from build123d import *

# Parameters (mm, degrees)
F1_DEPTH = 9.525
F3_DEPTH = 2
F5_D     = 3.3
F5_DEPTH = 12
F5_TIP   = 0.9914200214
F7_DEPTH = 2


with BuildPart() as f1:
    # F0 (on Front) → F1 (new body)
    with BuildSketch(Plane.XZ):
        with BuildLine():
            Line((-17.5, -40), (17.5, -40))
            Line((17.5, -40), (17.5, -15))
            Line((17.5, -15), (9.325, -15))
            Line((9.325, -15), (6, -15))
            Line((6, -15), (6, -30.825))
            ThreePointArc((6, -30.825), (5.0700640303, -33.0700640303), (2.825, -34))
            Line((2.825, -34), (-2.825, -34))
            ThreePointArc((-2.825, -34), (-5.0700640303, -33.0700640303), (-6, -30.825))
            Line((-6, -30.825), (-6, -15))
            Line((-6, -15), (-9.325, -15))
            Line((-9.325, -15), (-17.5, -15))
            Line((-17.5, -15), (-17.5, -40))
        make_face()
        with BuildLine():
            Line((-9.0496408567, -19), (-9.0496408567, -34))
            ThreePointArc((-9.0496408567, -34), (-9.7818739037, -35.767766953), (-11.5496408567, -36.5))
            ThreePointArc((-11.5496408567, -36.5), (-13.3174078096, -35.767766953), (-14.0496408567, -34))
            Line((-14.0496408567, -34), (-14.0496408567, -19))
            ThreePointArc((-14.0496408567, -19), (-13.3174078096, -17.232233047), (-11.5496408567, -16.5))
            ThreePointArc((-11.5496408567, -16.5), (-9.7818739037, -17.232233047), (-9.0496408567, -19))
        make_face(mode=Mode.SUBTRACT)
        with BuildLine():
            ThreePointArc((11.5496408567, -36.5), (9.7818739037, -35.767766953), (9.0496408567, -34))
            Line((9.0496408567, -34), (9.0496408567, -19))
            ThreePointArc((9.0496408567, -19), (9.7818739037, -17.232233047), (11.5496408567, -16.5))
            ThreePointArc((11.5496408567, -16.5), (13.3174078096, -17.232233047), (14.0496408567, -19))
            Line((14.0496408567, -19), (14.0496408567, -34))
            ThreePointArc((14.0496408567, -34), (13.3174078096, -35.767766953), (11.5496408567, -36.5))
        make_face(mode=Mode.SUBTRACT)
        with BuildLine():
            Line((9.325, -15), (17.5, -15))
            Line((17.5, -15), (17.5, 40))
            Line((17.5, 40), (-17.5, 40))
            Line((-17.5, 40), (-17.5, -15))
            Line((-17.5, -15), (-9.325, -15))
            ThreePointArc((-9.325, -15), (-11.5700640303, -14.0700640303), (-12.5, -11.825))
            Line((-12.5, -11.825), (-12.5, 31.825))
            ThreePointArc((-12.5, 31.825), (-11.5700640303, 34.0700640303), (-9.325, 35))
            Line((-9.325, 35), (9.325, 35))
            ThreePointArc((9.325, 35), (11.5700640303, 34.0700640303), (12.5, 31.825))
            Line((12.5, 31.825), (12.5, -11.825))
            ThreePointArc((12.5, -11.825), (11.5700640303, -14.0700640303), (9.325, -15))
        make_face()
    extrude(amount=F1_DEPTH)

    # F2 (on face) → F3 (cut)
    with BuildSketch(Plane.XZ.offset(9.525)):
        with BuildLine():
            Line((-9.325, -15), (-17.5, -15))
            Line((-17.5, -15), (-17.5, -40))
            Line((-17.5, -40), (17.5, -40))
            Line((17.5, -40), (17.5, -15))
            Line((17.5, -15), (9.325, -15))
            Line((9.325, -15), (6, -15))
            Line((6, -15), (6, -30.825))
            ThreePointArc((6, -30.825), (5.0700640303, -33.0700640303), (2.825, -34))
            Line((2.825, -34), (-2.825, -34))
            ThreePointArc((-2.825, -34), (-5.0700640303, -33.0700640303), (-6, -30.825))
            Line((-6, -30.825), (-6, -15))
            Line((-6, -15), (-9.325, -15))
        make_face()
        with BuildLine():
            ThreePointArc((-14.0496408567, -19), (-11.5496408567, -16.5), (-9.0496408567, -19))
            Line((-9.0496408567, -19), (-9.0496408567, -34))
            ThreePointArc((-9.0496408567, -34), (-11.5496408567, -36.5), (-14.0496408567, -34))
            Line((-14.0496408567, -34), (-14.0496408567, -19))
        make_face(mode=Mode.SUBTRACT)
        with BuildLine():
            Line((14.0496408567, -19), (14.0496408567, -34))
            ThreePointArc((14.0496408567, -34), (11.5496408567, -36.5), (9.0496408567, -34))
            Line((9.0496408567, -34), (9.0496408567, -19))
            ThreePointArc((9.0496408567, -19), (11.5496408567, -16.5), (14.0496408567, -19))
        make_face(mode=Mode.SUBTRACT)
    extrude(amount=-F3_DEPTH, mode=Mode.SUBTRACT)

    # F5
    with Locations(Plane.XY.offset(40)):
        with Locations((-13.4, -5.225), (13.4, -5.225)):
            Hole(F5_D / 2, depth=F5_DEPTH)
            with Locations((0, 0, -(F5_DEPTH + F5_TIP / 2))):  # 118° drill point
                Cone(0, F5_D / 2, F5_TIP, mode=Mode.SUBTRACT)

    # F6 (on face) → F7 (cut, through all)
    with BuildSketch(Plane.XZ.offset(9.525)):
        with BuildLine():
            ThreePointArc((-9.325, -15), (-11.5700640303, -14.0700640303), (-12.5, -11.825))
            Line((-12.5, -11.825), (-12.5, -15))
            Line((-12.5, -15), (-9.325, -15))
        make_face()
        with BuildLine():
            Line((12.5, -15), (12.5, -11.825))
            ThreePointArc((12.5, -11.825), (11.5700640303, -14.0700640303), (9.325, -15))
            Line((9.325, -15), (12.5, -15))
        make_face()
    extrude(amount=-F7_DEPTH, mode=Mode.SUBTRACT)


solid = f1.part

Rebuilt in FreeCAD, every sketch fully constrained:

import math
import FreeCAD as App
import Part
import Sketcher
Q = App.Units.Quantity


def add_polygon(sketch, points):
    """Adds a closed chain of lines whose ends are joined by coincident constraints."""
    first, n = sketch.GeometryCount, len(points)
    for a, b in zip(points, points[1:] + points[:1]):
        sketch.addGeometry(Part.LineSegment(App.Vector(*a, 0), App.Vector(*b, 0)), False)
    for i in range(n):
        sketch.addConstraint(Sketcher.Constraint("Coincident", first + i, 2, first + (i + 1) % n, 1))

doc = App.newDocument("Part")
body = doc.addObject("PartDesign::Body", "Body")

# Sketch on XZ plane
sketch1 = body.newObject("Sketcher::SketchObject", "Sketch")
sketch1.AttachmentSupport = (doc.getObject("XZ_Plane"), [""])
sketch1.MapMode = "FlatFace"
add_polygon(sketch1, [(-17.5, -40), (17.5, -40), (17.5, 40), (-17.5, 40)])  # lines 0-3
sketch1.addGeometry(Part.LineSegment(App.Vector(-6, -15, 0), App.Vector(-9.325, -15, 0)), False)  # 4
sketch1.addGeometry(Part.ArcOfCircle(Part.Circle(App.Vector(-9.325, -11.825, 0), App.Vector(0, 0, 1), 3.175), math.radians(180), math.radians(270)), False)  # 5
sketch1.addGeometry(Part.LineSegment(App.Vector(-12.5, -11.825, 0), App.Vector(-12.5, 31.825, 0)), False)  # 6
sketch1.addGeometry(Part.ArcOfCircle(Part.Circle(App.Vector(-9.325, 31.825, 0), App.Vector(0, 0, 1), 3.175), math.radians(90), math.radians(180)), False)  # 7
sketch1.addGeometry(Part.LineSegment(App.Vector(-9.325, 35, 0), App.Vector(9.325, 35, 0)), False)  # 8
sketch1.addGeometry(Part.ArcOfCircle(Part.Circle(App.Vector(9.325, 31.825, 0), App.Vector(0, 0, 1), 3.175), math.radians(0), math.radians(90)), False)  # 9
sketch1.addGeometry(Part.LineSegment(App.Vector(12.5, 31.825, 0), App.Vector(12.5, -11.825, 0)), False)  # 10
sketch1.addGeometry(Part.ArcOfCircle(Part.Circle(App.Vector(9.325, -11.825, 0), App.Vector(0, 0, 1), 3.175), math.radians(-90), math.radians(0)), False)  # 11
sketch1.addGeometry(Part.LineSegment(App.Vector(9.325, -15, 0), App.Vector(6, -15, 0)), False)  # 12
sketch1.addGeometry(Part.LineSegment(App.Vector(6, -15, 0), App.Vector(6, -30.825, 0)), False)  # 13
sketch1.addGeometry(Part.ArcOfCircle(Part.Circle(App.Vector(2.825, -30.825, 0), App.Vector(0, 0, 1), 3.175), math.radians(-90), math.radians(0)), False)  # 14
sketch1.addGeometry(Part.LineSegment(App.Vector(2.825, -34, 0), App.Vector(-2.825, -34, 0)), False)  # 15
sketch1.addGeometry(Part.ArcOfCircle(Part.Circle(App.Vector(-2.825, -30.825, 0), App.Vector(0, 0, 1), 3.175), math.radians(180), math.radians(270)), False)  # 16
sketch1.addGeometry(Part.LineSegment(App.Vector(-6, -30.825, 0), App.Vector(-6, -15, 0)), False)  # 17
sketch1.addGeometry(Part.ArcOfCircle(Part.Circle(App.Vector(-11.549641, -19, 0), App.Vector(0, 0, 1), 2.5), math.radians(0), math.radians(90)), False)  # 18
sketch1.addGeometry(Part.LineSegment(App.Vector(-9.049641, -19, 0), App.Vector(-9.049641, -34, 0)), False)  # 19
sketch1.addGeometry(Part.ArcOfCircle(Part.Circle(App.Vector(-11.549641, -34, 0), App.Vector(0, 0, 1), 2.5), math.radians(-90), math.radians(0)), False)  # 20
sketch1.addGeometry(Part.ArcOfCircle(Part.Circle(App.Vector(-11.549641, -34, 0), App.Vector(0, 0, 1), 2.5), math.radians(180), math.radians(270)), False)  # 21
sketch1.addGeometry(Part.LineSegment(App.Vector(-14.049641, -34, 0), App.Vector(-14.049641, -19, 0)), False)  # 22
sketch1.addGeometry(Part.ArcOfCircle(Part.Circle(App.Vector(-11.549641, -19, 0), App.Vector(0, 0, 1), 2.5), math.radians(90), math.radians(180)), False)  # 23
sketch1.addGeometry(Part.ArcOfCircle(Part.Circle(App.Vector(11.549641, -34, 0), App.Vector(0, 0, 1), 2.5), math.radians(-90), math.radians(0)), False)  # 24
sketch1.addGeometry(Part.ArcOfCircle(Part.Circle(App.Vector(11.549641, -34, 0), App.Vector(0, 0, 1), 2.5), math.radians(180), math.radians(270)), False)  # 25
sketch1.addGeometry(Part.LineSegment(App.Vector(9.049641, -34, 0), App.Vector(9.049641, -19, 0)), False)  # 26
sketch1.addGeometry(Part.ArcOfCircle(Part.Circle(App.Vector(11.549641, -19, 0), App.Vector(0, 0, 1), 2.5), math.radians(90), math.radians(180)), False)  # 27
sketch1.addGeometry(Part.ArcOfCircle(Part.Circle(App.Vector(11.549641, -19, 0), App.Vector(0, 0, 1), 2.5), math.radians(0), math.radians(90)), False)  # 28
sketch1.addGeometry(Part.LineSegment(App.Vector(14.049641, -19, 0), App.Vector(14.049641, -34, 0)), False)  # 29
sketch1.addConstraint([
    Sketcher.Constraint("Tangent", 4, 2, 5, 2),
    Sketcher.Constraint("Tangent", 5, 1, 6, 1),
    Sketcher.Constraint("Tangent", 6, 2, 7, 2),
    Sketcher.Constraint("Tangent", 7, 1, 8, 1),
    Sketcher.Constraint("Tangent", 8, 2, 9, 2),
    Sketcher.Constraint("Tangent", 9, 1, 10, 1),
    Sketcher.Constraint("Tangent", 10, 2, 11, 2),
    Sketcher.Constraint("Tangent", 11, 1, 12, 1),
    Sketcher.Constraint("Coincident", 12, 2, 13, 1),
    Sketcher.Constraint("Tangent", 13, 2, 14, 2),
    Sketcher.Constraint("Tangent", 14, 1, 15, 1),
    Sketcher.Constraint("Tangent", 15, 2, 16, 2),
    Sketcher.Constraint("Tangent", 16, 1, 17, 1),
    Sketcher.Constraint("Coincident", 17, 2, 4, 1),
    Sketcher.Constraint("Tangent", 18, 1, 19, 1),
    Sketcher.Constraint("Tangent", 19, 2, 20, 2),
    Sketcher.Constraint("Tangent", 20, 1, 21, 2),
    Sketcher.Constraint("Tangent", 21, 1, 22, 1),
    Sketcher.Constraint("Tangent", 22, 2, 23, 2),
    Sketcher.Constraint("Tangent", 23, 1, 18, 2),
    Sketcher.Constraint("Tangent", 24, 1, 25, 2),
    Sketcher.Constraint("Tangent", 25, 1, 26, 1),
    Sketcher.Constraint("Tangent", 26, 2, 27, 2),
    Sketcher.Constraint("Tangent", 27, 1, 28, 2),
    Sketcher.Constraint("Tangent", 28, 1, 29, 1),
    Sketcher.Constraint("Tangent", 29, 2, 24, 2),
    Sketcher.Constraint("Horizontal", 0),
    Sketcher.Constraint("Vertical", 1),
    Sketcher.Constraint("Horizontal", 2),
    Sketcher.Constraint("Vertical", 3),
    Sketcher.Constraint("Horizontal", 4),
    Sketcher.Constraint("Vertical", 6),
    Sketcher.Constraint("Horizontal", 8),
    Sketcher.Constraint("Vertical", 10),
    Sketcher.Constraint("Horizontal", 12),
    Sketcher.Constraint("Vertical", 13),
    Sketcher.Constraint("Horizontal", 15),
    Sketcher.Constraint("Vertical", 17),
    Sketcher.Constraint("Vertical", 19),
    Sketcher.Constraint("Vertical", 22),
    Sketcher.Constraint("Vertical", 26),
    Sketcher.Constraint("Vertical", 29),
    Sketcher.Constraint("Equal", 5, 7),
    Sketcher.Constraint("Equal", 7, 9),
    Sketcher.Constraint("Equal", 9, 11),
    Sketcher.Constraint("Equal", 11, 14),
    Sketcher.Constraint("Equal", 14, 16),
    Sketcher.Constraint("Equal", 18, 20),
    Sketcher.Constraint("Equal", 20, 21),
    Sketcher.Constraint("Equal", 23, 24),
    Sketcher.Constraint("Equal", 24, 25),
    Sketcher.Constraint("Equal", 25, 27),
    Sketcher.Constraint("Symmetric", 0, 2, 2, 2, -1, 1),
    Sketcher.Constraint("Symmetric", 5, 3, 11, 3, -2),
    Sketcher.Constraint("Symmetric", 20, 3, 24, 3, -2),
    Sketcher.Constraint("Symmetric", 23, 1, 27, 1, -2),
    Sketcher.Constraint("Horizontal", 25, 3, 14, 1),
    Sketcher.Constraint("Vertical", 23, 3, 20, 1),
    Sketcher.Constraint("Vertical", 20, 1, 23, 1),
    Sketcher.Constraint("Vertical", 28, 3, 24, 1),
    Sketcher.Constraint("Equal", 4, 12),
    Sketcher.Constraint("Radius", 18, Q("2.5 mm")),
    Sketcher.Constraint("DistanceX", 0, 1, 0, 2, Q("35 mm")),
    Sketcher.Constraint("DistanceY", 1, 1, 1, 2, Q("80 mm")),
    Sketcher.Constraint("DistanceY", 19, 2, 19, 1, Q("15 mm")),
    Sketcher.Constraint("DistanceY", 18, 3, -1, 1, Q("19 mm")),
    Sketcher.Constraint("DistanceY", 4, 2, -1, 1, Q("15 mm")),
    Sketcher.Constraint("DistanceY", -1, 1, 7, 1, Q("35 mm")),
    Sketcher.Constraint("DistanceX", -1, 1, 12, 2, Q("6 mm")),
    Sketcher.Constraint("Radius", 5, Q("3.175 mm")),
    Sketcher.Constraint("DistanceX", 2, 2, 6, 2, Q("5 mm")),
    Sketcher.Constraint("DistanceX", 18, 3, -1, 1, Q("11.549641 mm")),
])
pad1 = body.newObject("PartDesign::Pad", "Pad")
pad1.Profile = sketch1
pad1.Length = 9.525

# Sketch on XZ plane
sketch2 = body.newObject("Sketcher::SketchObject", "Sketch001")
sketch2.AttachmentSupport = (doc.getObject("XZ_Plane"), [""])
sketch2.MapMode = "FlatFace"
sketch2.AttachmentOffset = App.Placement(App.Vector(0, 0, 9.525), App.Rotation())
sketch2.addGeometry([
    Part.LineSegment(App.Vector(-17.5, -15, 0), App.Vector(-17.5, -40, 0)),  # 0
    Part.LineSegment(App.Vector(-17.5, -40, 0), App.Vector(17.5, -40, 0)),  # 1
    Part.LineSegment(App.Vector(17.5, -40, 0), App.Vector(17.5, -15, 0)),  # 2
    Part.LineSegment(App.Vector(17.5, -15, 0), App.Vector(6, -15, 0)),  # 3
    Part.LineSegment(App.Vector(6, -15, 0), App.Vector(6, -30.825, 0)),  # 4
    Part.ArcOfCircle(Part.Circle(App.Vector(2.825, -30.825, 0), App.Vector(0, 0, 1), 3.175), math.radians(-90), math.radians(0)),  # 5
    Part.LineSegment(App.Vector(2.825, -34, 0), App.Vector(-2.825, -34, 0)),  # 6
    Part.ArcOfCircle(Part.Circle(App.Vector(-2.825, -30.825, 0), App.Vector(0, 0, 1), 3.175), math.radians(180), math.radians(270)),  # 7
    Part.LineSegment(App.Vector(-6, -30.825, 0), App.Vector(-6, -15, 0)),  # 8
    Part.LineSegment(App.Vector(-6, -15, 0), App.Vector(-17.5, -15, 0)),  # 9
    Part.LineSegment(App.Vector(-14.049641, -34, 0), App.Vector(-14.049641, -19, 0)),  # 10
    Part.ArcOfCircle(Part.Circle(App.Vector(-11.549641, -19, 0), App.Vector(0, 0, 1), 2.5), math.radians(0), math.radians(180)),  # 11
    Part.LineSegment(App.Vector(-9.049641, -19, 0), App.Vector(-9.049641, -34, 0)),  # 12
    Part.ArcOfCircle(Part.Circle(App.Vector(-11.549641, -34, 0), App.Vector(0, 0, 1), 2.5), math.radians(180), math.radians(360)),  # 13
    Part.ArcOfCircle(Part.Circle(App.Vector(11.549641, -19, 0), App.Vector(0, 0, 1), 2.5), math.radians(0), math.radians(180)),  # 14
    Part.LineSegment(App.Vector(14.049641, -19, 0), App.Vector(14.049641, -34, 0)),  # 15
    Part.ArcOfCircle(Part.Circle(App.Vector(11.549641, -34, 0), App.Vector(0, 0, 1), 2.5), math.radians(180), math.radians(360)),  # 16
    Part.LineSegment(App.Vector(9.049641, -34, 0), App.Vector(9.049641, -19, 0)),  # 17
], False)
sketch2.addConstraint([
    Sketcher.Constraint("Coincident", 0, 2, 1, 1),
    Sketcher.Constraint("Coincident", 1, 2, 2, 1),
    Sketcher.Constraint("Coincident", 2, 2, 3, 1),
    Sketcher.Constraint("Coincident", 3, 2, 4, 1),
    Sketcher.Constraint("Tangent", 4, 2, 5, 2),
    Sketcher.Constraint("Tangent", 5, 1, 6, 1),
    Sketcher.Constraint("Tangent", 6, 2, 7, 2),
    Sketcher.Constraint("Tangent", 7, 1, 8, 1),
    Sketcher.Constraint("Coincident", 8, 2, 9, 1),
    Sketcher.Constraint("Coincident", 9, 2, 0, 1),
    Sketcher.Constraint("Tangent", 10, 2, 11, 2),
    Sketcher.Constraint("Tangent", 11, 1, 12, 1),
    Sketcher.Constraint("Tangent", 12, 2, 13, 2),
    Sketcher.Constraint("Tangent", 13, 1, 10, 1),
    Sketcher.Constraint("Tangent", 14, 1, 15, 1),
    Sketcher.Constraint("Tangent", 15, 2, 16, 2),
    Sketcher.Constraint("Tangent", 16, 1, 17, 1),
    Sketcher.Constraint("Tangent", 17, 2, 14, 2),
    Sketcher.Constraint("Vertical", 0),
    Sketcher.Constraint("Horizontal", 1),
    Sketcher.Constraint("Vertical", 2),
    Sketcher.Constraint("Horizontal", 3),
    Sketcher.Constraint("Vertical", 4),
    Sketcher.Constraint("Horizontal", 6),
    Sketcher.Constraint("Vertical", 8),
    Sketcher.Constraint("Horizontal", 9),
    Sketcher.Constraint("Vertical", 10),
    Sketcher.Constraint("Vertical", 12),
    Sketcher.Constraint("Vertical", 15),
    Sketcher.Constraint("Vertical", 17),
    Sketcher.Constraint("Equal", 5, 7),
    Sketcher.Constraint("Equal", 13, 14),
    Sketcher.Constraint("Symmetric", 11, 3, 14, 3, -2),
    Sketcher.Constraint("Symmetric", 3, 2, 8, 2, -2),
    Sketcher.Constraint("Horizontal", 13, 3, 16, 3),
    Sketcher.Constraint("Horizontal", 16, 3, 5, 1),
    Sketcher.Constraint("Equal", 3, 9),
    Sketcher.Constraint("Radius", 11, Q("2.5 mm")),
    Sketcher.Constraint("DistanceX", 1, 1, 1, 2, Q("35 mm")),
    Sketcher.Constraint("DistanceY", 0, 2, 0, 1, Q("25 mm")),
    Sketcher.Constraint("DistanceY", 10, 1, 10, 2, Q("15 mm")),
    Sketcher.Constraint("DistanceX", 3, 2, 3, 1, Q("11.5 mm")),
    Sketcher.Constraint("DistanceY", 11, 3, -1, 1, Q("19 mm")),
    Sketcher.Constraint("DistanceY", 0, 2, -1, 1, Q("40 mm")),
    Sketcher.Constraint("Radius", 5, Q("3.175 mm")),
    Sketcher.Constraint("DistanceX", 11, 3, -1, 1, Q("11.549641 mm")),
])
pocket1 = body.newObject("PartDesign::Pocket", "Pocket")
pocket1.Profile = sketch2
pocket1.Length = 2

# Sketch on XY plane
sketch3 = body.newObject("Sketcher::SketchObject", "Sketch002")
sketch3.AttachmentSupport = (doc.getObject("XY_Plane"), [""])
sketch3.MapMode = "FlatFace"
sketch3.AttachmentOffset = App.Placement(App.Vector(0, 0, 40), App.Rotation())
sketch3.addGeometry([
    Part.Circle(App.Vector(-13.4, -5.225, 0), App.Vector(0, 0, 1), 1.65),
    Part.Circle(App.Vector(13.4, -5.225, 0), App.Vector(0, 0, 1), 1.65),
], False)
sketch3.addConstraint([
    Sketcher.Constraint("Equal", 0, 1),
    Sketcher.Constraint("Symmetric", 0, 3, 1, 3, -2),
    Sketcher.Constraint("Diameter", 0, Q("3.3 mm")),
    Sketcher.Constraint("DistanceX", 0, 3, -1, 1, Q("13.4 mm")),
    Sketcher.Constraint("DistanceY", 0, 3, -1, 1, Q("5.225 mm")),
])
doc.recompute()
hole = body.newObject("PartDesign::Hole", "Hole")
hole.Profile = sketch3
hole.ThreadType = "None"
hole.Diameter = 3.3
hole.DepthType = "Dimension"
hole.Depth = 12
hole.DrillPoint = "Angled"
hole.DrillPointAngle = 118

# Sketch on XZ plane
sketch4 = body.newObject("Sketcher::SketchObject", "Sketch003")
sketch4.AttachmentSupport = (doc.getObject("XZ_Plane"), [""])
sketch4.MapMode = "FlatFace"
sketch4.AttachmentOffset = App.Placement(App.Vector(0, 0, 9.525), App.Rotation())
sketch4.addGeometry([
    Part.ArcOfCircle(Part.Circle(App.Vector(-9.325, -11.825, 0), App.Vector(0, 0, 1), 3.175), math.radians(180), math.radians(270)),  # 0
    Part.LineSegment(App.Vector(-12.5, -11.825, 0), App.Vector(-12.5, -15, 0)),  # 1
    Part.LineSegment(App.Vector(-12.5, -15, 0), App.Vector(-9.325, -15, 0)),  # 2
    Part.LineSegment(App.Vector(12.5, -15, 0), App.Vector(12.5, -11.825, 0)),  # 3
    Part.ArcOfCircle(Part.Circle(App.Vector(9.325, -11.825, 0), App.Vector(0, 0, 1), 3.175), math.radians(-90), math.radians(0)),  # 4
    Part.LineSegment(App.Vector(9.325, -15, 0), App.Vector(12.5, -15, 0)),  # 5
], False)
sketch4.addConstraint([
    Sketcher.Constraint("Tangent", 0, 1, 1, 1),
    Sketcher.Constraint("Coincident", 1, 2, 2, 1),
    Sketcher.Constraint("Tangent", 2, 2, 0, 2),
    Sketcher.Constraint("Tangent", 3, 2, 4, 2),
    Sketcher.Constraint("Tangent", 4, 1, 5, 1),
    Sketcher.Constraint("Coincident", 5, 2, 3, 1),
    Sketcher.Constraint("Vertical", 1),
    Sketcher.Constraint("Horizontal", 2),
    Sketcher.Constraint("Vertical", 3),
    Sketcher.Constraint("Horizontal", 5),
    Sketcher.Constraint("Equal", 0, 4),
    Sketcher.Constraint("Symmetric", 0, 3, 4, 3, -2),
    Sketcher.Constraint("DistanceY", 1, 2, -1, 1, Q("15 mm")),
    Sketcher.Constraint("Radius", 0, Q("3.175 mm")),
    Sketcher.Constraint("DistanceX", 0, 1, 3, 2, Q("25 mm")),
])
pocket2 = body.newObject("PartDesign::Pocket", "Pocket001")
pocket2.Profile = sketch4
pocket2.Length = 2

doc.recompute()
